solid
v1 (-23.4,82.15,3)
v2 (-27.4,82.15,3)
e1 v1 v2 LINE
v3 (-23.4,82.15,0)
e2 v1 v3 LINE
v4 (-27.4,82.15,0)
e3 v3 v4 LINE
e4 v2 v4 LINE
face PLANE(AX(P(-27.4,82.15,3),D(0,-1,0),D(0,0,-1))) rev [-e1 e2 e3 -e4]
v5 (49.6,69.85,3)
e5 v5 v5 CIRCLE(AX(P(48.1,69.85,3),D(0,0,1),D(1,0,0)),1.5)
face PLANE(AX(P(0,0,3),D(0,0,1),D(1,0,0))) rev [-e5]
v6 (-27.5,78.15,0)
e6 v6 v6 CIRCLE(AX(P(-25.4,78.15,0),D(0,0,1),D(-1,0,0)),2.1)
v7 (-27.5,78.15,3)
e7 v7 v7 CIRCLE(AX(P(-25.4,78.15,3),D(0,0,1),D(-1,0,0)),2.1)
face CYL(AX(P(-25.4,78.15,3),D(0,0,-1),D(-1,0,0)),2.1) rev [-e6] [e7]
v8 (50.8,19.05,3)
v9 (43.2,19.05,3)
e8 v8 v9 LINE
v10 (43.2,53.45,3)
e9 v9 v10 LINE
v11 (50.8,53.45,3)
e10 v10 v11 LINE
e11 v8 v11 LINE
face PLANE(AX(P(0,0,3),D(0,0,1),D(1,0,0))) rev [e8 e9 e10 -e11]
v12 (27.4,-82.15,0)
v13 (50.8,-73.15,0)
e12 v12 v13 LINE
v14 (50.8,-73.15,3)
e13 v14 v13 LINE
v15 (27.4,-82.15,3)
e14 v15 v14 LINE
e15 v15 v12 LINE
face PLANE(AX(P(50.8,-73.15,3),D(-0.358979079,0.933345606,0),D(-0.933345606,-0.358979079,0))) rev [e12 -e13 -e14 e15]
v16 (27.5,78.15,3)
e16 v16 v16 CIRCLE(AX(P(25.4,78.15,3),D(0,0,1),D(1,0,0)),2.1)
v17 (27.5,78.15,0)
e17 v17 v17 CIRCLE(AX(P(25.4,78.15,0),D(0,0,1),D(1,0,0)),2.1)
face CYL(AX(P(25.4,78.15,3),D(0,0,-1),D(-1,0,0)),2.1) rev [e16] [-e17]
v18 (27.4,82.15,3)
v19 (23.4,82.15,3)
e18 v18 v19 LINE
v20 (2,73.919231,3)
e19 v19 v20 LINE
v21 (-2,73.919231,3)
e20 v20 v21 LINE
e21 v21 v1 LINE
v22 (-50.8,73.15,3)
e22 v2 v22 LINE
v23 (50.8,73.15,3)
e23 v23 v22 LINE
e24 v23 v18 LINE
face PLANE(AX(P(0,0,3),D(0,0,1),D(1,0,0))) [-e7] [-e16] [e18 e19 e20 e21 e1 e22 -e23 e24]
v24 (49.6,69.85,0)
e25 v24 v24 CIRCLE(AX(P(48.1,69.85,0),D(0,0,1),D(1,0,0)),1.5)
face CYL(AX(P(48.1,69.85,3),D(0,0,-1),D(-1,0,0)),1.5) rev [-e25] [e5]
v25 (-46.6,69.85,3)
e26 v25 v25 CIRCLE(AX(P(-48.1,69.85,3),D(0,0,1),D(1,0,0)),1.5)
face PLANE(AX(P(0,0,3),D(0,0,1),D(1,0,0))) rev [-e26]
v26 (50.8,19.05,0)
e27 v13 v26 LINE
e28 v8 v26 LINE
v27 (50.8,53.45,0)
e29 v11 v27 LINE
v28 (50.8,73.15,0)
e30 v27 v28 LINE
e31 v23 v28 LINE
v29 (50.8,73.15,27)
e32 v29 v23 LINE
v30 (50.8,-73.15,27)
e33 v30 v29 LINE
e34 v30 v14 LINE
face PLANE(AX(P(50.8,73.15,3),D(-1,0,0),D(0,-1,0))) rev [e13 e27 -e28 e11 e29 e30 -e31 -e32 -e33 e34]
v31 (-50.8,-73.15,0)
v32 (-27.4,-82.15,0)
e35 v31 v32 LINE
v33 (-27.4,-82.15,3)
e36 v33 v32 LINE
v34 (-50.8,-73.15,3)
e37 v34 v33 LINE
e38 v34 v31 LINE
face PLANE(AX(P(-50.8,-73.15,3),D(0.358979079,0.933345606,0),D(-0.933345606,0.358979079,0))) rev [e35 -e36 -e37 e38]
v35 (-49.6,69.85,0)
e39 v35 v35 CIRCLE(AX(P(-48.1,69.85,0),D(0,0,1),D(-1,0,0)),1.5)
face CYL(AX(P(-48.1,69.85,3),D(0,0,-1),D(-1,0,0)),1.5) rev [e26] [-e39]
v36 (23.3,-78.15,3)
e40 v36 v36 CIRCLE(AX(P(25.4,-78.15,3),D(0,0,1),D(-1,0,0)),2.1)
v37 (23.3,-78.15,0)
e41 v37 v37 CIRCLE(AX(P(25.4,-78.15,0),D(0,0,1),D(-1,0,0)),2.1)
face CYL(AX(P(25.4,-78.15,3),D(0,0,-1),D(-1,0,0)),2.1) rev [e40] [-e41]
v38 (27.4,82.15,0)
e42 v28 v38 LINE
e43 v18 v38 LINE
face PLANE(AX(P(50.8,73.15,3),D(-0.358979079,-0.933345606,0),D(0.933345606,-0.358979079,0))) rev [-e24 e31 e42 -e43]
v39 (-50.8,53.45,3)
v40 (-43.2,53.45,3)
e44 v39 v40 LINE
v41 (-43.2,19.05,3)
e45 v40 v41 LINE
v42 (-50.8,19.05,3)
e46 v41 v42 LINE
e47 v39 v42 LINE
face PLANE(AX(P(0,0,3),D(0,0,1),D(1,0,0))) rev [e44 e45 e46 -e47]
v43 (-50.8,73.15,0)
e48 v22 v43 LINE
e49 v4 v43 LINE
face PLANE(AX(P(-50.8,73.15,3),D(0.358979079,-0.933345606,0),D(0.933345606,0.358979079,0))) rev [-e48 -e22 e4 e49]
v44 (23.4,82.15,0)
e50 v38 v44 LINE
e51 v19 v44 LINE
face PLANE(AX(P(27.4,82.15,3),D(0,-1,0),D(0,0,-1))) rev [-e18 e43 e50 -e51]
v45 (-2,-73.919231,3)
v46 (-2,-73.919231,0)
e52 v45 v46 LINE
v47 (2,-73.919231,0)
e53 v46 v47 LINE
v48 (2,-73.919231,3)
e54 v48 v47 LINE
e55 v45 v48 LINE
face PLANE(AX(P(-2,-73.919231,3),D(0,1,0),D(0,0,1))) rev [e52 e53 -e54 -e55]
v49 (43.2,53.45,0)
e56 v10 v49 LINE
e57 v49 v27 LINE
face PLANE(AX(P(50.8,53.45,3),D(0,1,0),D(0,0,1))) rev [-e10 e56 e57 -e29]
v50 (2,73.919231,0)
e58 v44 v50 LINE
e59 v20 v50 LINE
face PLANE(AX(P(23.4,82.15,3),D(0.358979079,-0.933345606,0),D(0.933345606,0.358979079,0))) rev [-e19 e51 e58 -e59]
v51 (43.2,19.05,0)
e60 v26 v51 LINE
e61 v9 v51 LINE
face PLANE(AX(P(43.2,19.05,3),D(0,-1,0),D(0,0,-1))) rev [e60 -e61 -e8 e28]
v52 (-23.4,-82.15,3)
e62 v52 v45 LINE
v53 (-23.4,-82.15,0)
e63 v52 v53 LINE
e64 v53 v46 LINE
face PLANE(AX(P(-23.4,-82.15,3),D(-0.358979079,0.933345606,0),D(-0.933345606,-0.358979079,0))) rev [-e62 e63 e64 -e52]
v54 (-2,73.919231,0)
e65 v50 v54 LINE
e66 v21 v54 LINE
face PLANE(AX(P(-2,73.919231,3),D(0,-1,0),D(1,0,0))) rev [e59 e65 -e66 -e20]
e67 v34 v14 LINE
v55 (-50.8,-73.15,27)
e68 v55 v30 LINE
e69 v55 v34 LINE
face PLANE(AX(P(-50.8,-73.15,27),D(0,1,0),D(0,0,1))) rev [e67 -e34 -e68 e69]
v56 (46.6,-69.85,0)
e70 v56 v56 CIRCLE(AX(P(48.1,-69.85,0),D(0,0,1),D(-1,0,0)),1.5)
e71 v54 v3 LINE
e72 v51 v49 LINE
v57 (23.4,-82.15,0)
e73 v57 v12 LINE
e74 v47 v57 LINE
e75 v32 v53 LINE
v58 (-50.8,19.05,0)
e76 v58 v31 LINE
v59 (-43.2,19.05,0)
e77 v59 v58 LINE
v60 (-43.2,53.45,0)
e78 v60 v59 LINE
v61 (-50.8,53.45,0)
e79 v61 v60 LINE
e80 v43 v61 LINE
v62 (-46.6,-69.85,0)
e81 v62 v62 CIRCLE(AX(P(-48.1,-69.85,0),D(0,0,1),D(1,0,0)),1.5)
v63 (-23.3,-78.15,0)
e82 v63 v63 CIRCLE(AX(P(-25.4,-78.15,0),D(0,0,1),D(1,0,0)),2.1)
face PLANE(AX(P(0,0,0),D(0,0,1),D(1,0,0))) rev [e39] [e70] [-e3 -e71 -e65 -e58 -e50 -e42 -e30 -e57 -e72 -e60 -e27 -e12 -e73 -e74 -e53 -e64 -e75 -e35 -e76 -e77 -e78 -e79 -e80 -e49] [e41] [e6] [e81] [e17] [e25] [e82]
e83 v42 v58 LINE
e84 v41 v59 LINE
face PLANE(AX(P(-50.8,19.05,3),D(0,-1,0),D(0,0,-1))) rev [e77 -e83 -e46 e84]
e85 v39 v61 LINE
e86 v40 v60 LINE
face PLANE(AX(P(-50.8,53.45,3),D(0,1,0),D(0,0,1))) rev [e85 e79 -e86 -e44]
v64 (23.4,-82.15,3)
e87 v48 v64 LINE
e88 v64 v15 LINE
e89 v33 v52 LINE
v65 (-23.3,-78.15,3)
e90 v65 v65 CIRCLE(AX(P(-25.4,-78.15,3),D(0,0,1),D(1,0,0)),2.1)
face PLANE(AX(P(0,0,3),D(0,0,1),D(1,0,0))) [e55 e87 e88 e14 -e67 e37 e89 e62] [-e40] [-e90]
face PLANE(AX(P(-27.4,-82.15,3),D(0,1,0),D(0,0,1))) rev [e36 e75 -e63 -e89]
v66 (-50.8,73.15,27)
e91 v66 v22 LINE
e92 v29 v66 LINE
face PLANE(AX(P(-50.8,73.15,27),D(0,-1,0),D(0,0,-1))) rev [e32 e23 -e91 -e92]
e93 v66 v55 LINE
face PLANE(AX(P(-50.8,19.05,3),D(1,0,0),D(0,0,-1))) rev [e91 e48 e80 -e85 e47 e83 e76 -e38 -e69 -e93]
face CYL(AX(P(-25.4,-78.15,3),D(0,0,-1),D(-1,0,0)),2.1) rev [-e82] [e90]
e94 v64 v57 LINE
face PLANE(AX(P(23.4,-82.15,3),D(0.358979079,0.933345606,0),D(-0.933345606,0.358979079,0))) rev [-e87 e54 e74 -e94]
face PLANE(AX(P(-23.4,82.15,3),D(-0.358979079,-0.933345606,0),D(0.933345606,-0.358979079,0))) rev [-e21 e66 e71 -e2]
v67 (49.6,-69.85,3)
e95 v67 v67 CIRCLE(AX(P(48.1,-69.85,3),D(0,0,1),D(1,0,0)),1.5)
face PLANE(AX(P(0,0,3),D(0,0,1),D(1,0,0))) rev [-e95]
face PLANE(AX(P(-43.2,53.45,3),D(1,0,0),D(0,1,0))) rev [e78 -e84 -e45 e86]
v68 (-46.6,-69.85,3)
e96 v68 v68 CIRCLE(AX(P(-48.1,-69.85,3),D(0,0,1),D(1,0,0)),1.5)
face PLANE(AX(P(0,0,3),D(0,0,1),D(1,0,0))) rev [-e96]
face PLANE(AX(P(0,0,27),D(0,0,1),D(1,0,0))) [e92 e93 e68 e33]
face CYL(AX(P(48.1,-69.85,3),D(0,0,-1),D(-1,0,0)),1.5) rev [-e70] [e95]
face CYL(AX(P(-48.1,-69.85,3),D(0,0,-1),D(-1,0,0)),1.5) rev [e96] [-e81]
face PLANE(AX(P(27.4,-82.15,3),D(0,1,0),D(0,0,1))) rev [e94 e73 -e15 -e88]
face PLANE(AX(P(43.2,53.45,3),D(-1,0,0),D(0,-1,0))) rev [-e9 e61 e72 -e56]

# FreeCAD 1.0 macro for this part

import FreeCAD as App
import Part
import Sketcher

doc = App.newDocument("Part")
body = doc.addObject("PartDesign::Body", "Body")

# Sketch on XY plane
sketch1 = body.newObject("Sketcher::SketchObject", "Sketch")
sketch1.AttachmentSupport = (doc.getObject("XY_Plane"), [""])
sketch1.MapMode = "FlatFace"
sketch1.addGeometry([
    Part.LineSegment(App.Vector(-27.4, 82.2, 0), App.Vector(-50.8, 73.2, 0)),  # 0
    Part.LineSegment(App.Vector(-50.8, 73.2, 0), App.Vector(-50.8, 53.5, 0)),  # 1
    Part.LineSegment(App.Vector(-50.8, 53.5, 0), App.Vector(-43.2, 53.5, 0)),  # 2
    Part.LineSegment(App.Vector(-43.2, 53.5, 0), App.Vector(-43.2, 19.1, 0)),  # 3
    Part.LineSegment(App.Vector(-43.2, 19.1, 0), App.Vector(-50.8, 19.1, 0)),  # 4
    Part.LineSegment(App.Vector(-50.8, 19.1, 0), App.Vector(-50.8, -73.2, 0)),  # 5
    Part.LineSegment(App.Vector(-50.8, -73.2, 0), App.Vector(-27.4, -82.2, 0)),  # 6
    Part.LineSegment(App.Vector(-27.4, -82.2, 0), App.Vector(-23.4, -82.2, 0)),  # 7
    Part.LineSegment(App.Vector(-23.4, -82.2, 0), App.Vector(-2, -73.9, 0)),  # 8
    Part.LineSegment(App.Vector(-2, -73.9, 0), App.Vector(2, -73.9, 0)),  # 9
    Part.LineSegment(App.Vector(2, -73.9, 0), App.Vector(23.4, -82.2, 0)),  # 10
    Part.LineSegment(App.Vector(23.4, -82.2, 0), App.Vector(27.4, -82.2, 0)),  # 11
    Part.LineSegment(App.Vector(27.4, -82.2, 0), App.Vector(50.8, -73.2, 0)),  # 12
    Part.LineSegment(App.Vector(50.8, -73.2, 0), App.Vector(50.8, 19.1, 0)),  # 13
    Part.LineSegment(App.Vector(50.8, 19.1, 0), App.Vector(43.2, 19.1, 0)),  # 14
    Part.LineSegment(App.Vector(43.2, 19.1, 0), App.Vector(43.2, 53.5, 0)),  # 15
    Part.LineSegment(App.Vector(43.2, 53.5, 0), App.Vector(50.8, 53.5, 0)),  # 16
    Part.LineSegment(App.Vector(50.8, 53.5, 0), App.Vector(50.8, 73.2, 0)),  # 17
    Part.LineSegment(App.Vector(50.8, 73.2, 0), App.Vector(27.4, 82.2, 0)),  # 18
    Part.LineSegment(App.Vector(27.4, 82.2, 0), App.Vector(23.4, 82.2, 0)),  # 19
    Part.LineSegment(App.Vector(23.4, 82.2, 0), App.Vector(2, 73.9, 0)),  # 20
    Part.LineSegment(App.Vector(2, 73.9, 0), App.Vector(-2, 73.9, 0)),  # 21
    Part.LineSegment(App.Vector(-2, 73.9, 0), App.Vector(-23.4, 82.2, 0)),  # 22
    Part.LineSegment(App.Vector(-23.4, 82.2, 0), App.Vector(-27.4, 82.2, 0)),  # 23
    Part.Circle(App.Vector(48.1, -69.8, 0), App.Vector(0, 0, 1), 1.5),  # 24
    Part.Circle(App.Vector(25.4, -78.2, 0), App.Vector(0, 0, 1), 2.1),  # 25
    Part.Circle(App.Vector(-25.4, -78.2, 0), App.Vector(0, 0, 1), 2.1),  # 26
    Part.Circle(App.Vector(-48.1, -69.8, 0), App.Vector(0, 0, 1), 1.5),  # 27
    Part.Circle(App.Vector(48.1, 69.8, 0), App.Vector(0, 0, 1), 1.5),  # 28
    Part.Circle(App.Vector(25.4, 78.2, 0), App.Vector(0, 0, 1), 2.1),  # 29
    Part.Circle(App.Vector(-25.4, 78.2, 0), App.Vector(0, 0, 1), 2.1),  # 30
    Part.Circle(App.Vector(-48.1, 69.8, 0), App.Vector(0, 0, 1), 1.5),  # 31
], False)
sketch1.addConstraint([
    Sketcher.Constraint("Coincident", 0, 2, 1, 1),
    Sketcher.Constraint("Coincident", 1, 2, 2, 1),
    Sketcher.Constraint("Coincident", 2, 2, 3, 1),
    Sketcher.Constraint("Coincident", 3, 2, 4, 1),
    Sketcher.Constraint("Coincident", 4, 2, 5, 1),
    Sketcher.Constraint("Coincident", 5, 2, 6, 1),
    Sketcher.Constraint("Coincident", 6, 2, 7, 1),
    Sketcher.Constraint("Coincident", 7, 2, 8, 1),
    Sketcher.Constraint("Coincident", 8, 2, 9, 1),
    Sketcher.Constraint("Coincident", 9, 2, 10, 1),
    Sketcher.Constraint("Coincident", 10, 2, 11, 1),
    Sketcher.Constraint("Coincident", 11, 2, 12, 1),
    Sketcher.Constraint("Coincident", 12, 2, 13, 1),
    Sketcher.Constraint("Coincident", 13, 2, 14, 1),
    Sketcher.Constraint("Coincident", 14, 2, 15, 1),
    Sketcher.Constraint("Coincident", 15, 2, 16, 1),
    Sketcher.Constraint("Coincident", 16, 2, 17, 1),
    Sketcher.Constraint("Coincident", 17, 2, 18, 1),
    Sketcher.Constraint("Coincident", 18, 2, 19, 1),
    Sketcher.Constraint("Coincident", 19, 2, 20, 1),
    Sketcher.Constraint("Coincident", 20, 2, 21, 1),
    Sketcher.Constraint("Coincident", 21, 2, 22, 1),
    Sketcher.Constraint("Coincident", 22, 2, 23, 1),
    Sketcher.Constraint("Coincident", 23, 2, 0, 1),
    Sketcher.Constraint("Vertical", 1),
    Sketcher.Constraint("Horizontal", 2),
    Sketcher.Constraint("Vertical", 3),
    Sketcher.Constraint("Horizontal", 4),
    Sketcher.Constraint("Vertical", 5),
    Sketcher.Constraint("Horizontal", 7),
    Sketcher.Constraint("Horizontal", 9),
    Sketcher.Constraint("Horizontal", 11),
    Sketcher.Constraint("Vertical", 13),
    Sketcher.Constraint("Horizontal", 14),
    Sketcher.Constraint("Vertical", 15),
    Sketcher.Constraint("Horizontal", 16),
    Sketcher.Constraint("Vertical", 17),
    Sketcher.Constraint("Horizontal", 19),
    Sketcher.Constraint("Horizontal", 21),
    Sketcher.Constraint("Horizontal", 23),
    Sketcher.Constraint("Equal", 25, 26),
    Sketcher.Constraint("Equal", 24, 27),
    Sketcher.Constraint("Equal", 27, 28),
    Sketcher.Constraint("Equal", 26, 29),
    Sketcher.Constraint("Equal", 29, 30),
    Sketcher.Constraint("Equal", 28, 31),
    Sketcher.Constraint("Symmetric", 27, 3, 28, 3, -1, 1),
    Sketcher.Constraint("Symmetric", 26, 3, 29, 3, -1, 1),
    Sketcher.Constraint("Symmetric", 25, 3, 30, 3, -1, 1),
    Sketcher.Constraint("Symmetric", 24, 3, 31, 3, -1, 1),
    Sketcher.Constraint("Symmetric", 0, 2, 12, 2, -1, 1),
    Sketcher.Constraint("Symmetric", 5, 2, 17, 2, -1, 1),
    Sketcher.Constraint("Symmetric", 6, 2, 18, 2, -1, 1),
    Sketcher.Constraint("Symmetric", 8, 2, 20, 2, -1, 1),
    Sketcher.Constraint("Symmetric", 10, 2, 22, 2, -1, 1),
    Sketcher.Constraint("Symmetric", 25, 3, 26, 3, -2),
    Sketcher.Constraint("Symmetric", 24, 3, 27, 3, -2),
    Sketcher.Constraint("Symmetric", 7, 2, 10, 2, -2),
    Sketcher.Constraint("Symmetric", 5, 2, 12, 2, -2),
    Sketcher.Constraint("Symmetric", 3, 2, 14, 2, -2),
    Sketcher.Constraint("Parallel", 0, 8),
    Sketcher.Constraint("Parallel", 6, 10),
    Sketcher.Constraint("Parallel", 8, 12),
    Sketcher.Constraint("Parallel", 12, 20),
    Sketcher.Constraint("Parallel", 18, 22),
    Sketcher.Constraint("Horizontal", 2, 2, 15, 2),
    Sketcher.Constraint("Vertical", 11, 2, 18, 2),
    Sketcher.Constraint("Equal", 7, 9),
    Sketcher.Constraint("Diameter", 24, 3.0),
    Sketcher.Constraint("Diameter", 25, 4.2),
    Sketcher.Constraint("DistanceX", 7, 1, 7, 2, 4.0),
    Sketcher.Constraint("DistanceX", 2, 1, 2, 2, 7.6),
    Sketcher.Constraint("DistanceY", 1, 2, 1, 1, 19.7),
    Sketcher.Constraint("DistanceY", 3, 2, 3, 1, 34.4),
    Sketcher.Constraint("DistanceY", 5, 2, 5, 1, 92.2),
    Sketcher.Constraint("DistanceY", 25, 3, 28, 3, 148.0),
    Sketcher.Constraint("DistanceY", 0, 2, 30, 3, 5.0),
    Sketcher.Constraint("DistanceX", 6, 2, 26, 3, 2.0),
    Sketcher.Constraint("DistanceY", 6, 2, 26, 3, 4.0),
    Sketcher.Constraint("DistanceX", 3, 2, 13, 2, 94.0),
    Sketcher.Constraint("DistanceX", -1, 1, 24, 3, 48.1),
    Sketcher.Constraint("DistanceX", -1, 1, 25, 3, 25.4),
])
pad1 = body.newObject("PartDesign::Pad", "Pad")
pad1.Profile = sketch1
pad1.Length = 3

# Sketch on XY plane
sketch2 = body.newObject("Sketcher::SketchObject", "Sketch001")
sketch2.AttachmentSupport = (doc.getObject("XY_Plane"), [""])
sketch2.MapMode = "FlatFace"
sketch2.AttachmentOffset = App.Placement(App.Vector(0, 0, 3), App.Rotation())
sketch2.addGeometry([
    Part.LineSegment(App.Vector(-51, 73, 0), App.Vector(-51, -73, 0)),
    Part.LineSegment(App.Vector(-51, -73, 0), App.Vector(51, -73, 0)),
    Part.LineSegment(App.Vector(51, -73, 0), App.Vector(51, 73, 0)),
    Part.LineSegment(App.Vector(51, 73, 0), App.Vector(-51, 73, 0)),
], False)
sketch2.addConstraint([
    Sketcher.Constraint("Coincident", 0, 2, 1, 1),
    Sketcher.Constraint("Coincident", 1, 2, 2, 1),
    Sketcher.Constraint("Coincident", 2, 2, 3, 1),
    Sketcher.Constraint("Coincident", 3, 2, 0, 1),
    Sketcher.Constraint("Vertical", 0),
    Sketcher.Constraint("Horizontal", 1),
    Sketcher.Constraint("Vertical", 2),
    Sketcher.Constraint("Horizontal", 3),
    Sketcher.Constraint("Symmetric", 0, 2, 2, 2, -1, 1),
    Sketcher.Constraint("DistanceX", 1, 1, 1, 2, 101.6),
    Sketcher.Constraint("DistanceY", 0, 2, 0, 1, 146.3),
])
pad2 = body.newObject("PartDesign::Pad", "Pad001")
pad2.Profile = sketch2
pad2.Length = 24

doc.recompute()
